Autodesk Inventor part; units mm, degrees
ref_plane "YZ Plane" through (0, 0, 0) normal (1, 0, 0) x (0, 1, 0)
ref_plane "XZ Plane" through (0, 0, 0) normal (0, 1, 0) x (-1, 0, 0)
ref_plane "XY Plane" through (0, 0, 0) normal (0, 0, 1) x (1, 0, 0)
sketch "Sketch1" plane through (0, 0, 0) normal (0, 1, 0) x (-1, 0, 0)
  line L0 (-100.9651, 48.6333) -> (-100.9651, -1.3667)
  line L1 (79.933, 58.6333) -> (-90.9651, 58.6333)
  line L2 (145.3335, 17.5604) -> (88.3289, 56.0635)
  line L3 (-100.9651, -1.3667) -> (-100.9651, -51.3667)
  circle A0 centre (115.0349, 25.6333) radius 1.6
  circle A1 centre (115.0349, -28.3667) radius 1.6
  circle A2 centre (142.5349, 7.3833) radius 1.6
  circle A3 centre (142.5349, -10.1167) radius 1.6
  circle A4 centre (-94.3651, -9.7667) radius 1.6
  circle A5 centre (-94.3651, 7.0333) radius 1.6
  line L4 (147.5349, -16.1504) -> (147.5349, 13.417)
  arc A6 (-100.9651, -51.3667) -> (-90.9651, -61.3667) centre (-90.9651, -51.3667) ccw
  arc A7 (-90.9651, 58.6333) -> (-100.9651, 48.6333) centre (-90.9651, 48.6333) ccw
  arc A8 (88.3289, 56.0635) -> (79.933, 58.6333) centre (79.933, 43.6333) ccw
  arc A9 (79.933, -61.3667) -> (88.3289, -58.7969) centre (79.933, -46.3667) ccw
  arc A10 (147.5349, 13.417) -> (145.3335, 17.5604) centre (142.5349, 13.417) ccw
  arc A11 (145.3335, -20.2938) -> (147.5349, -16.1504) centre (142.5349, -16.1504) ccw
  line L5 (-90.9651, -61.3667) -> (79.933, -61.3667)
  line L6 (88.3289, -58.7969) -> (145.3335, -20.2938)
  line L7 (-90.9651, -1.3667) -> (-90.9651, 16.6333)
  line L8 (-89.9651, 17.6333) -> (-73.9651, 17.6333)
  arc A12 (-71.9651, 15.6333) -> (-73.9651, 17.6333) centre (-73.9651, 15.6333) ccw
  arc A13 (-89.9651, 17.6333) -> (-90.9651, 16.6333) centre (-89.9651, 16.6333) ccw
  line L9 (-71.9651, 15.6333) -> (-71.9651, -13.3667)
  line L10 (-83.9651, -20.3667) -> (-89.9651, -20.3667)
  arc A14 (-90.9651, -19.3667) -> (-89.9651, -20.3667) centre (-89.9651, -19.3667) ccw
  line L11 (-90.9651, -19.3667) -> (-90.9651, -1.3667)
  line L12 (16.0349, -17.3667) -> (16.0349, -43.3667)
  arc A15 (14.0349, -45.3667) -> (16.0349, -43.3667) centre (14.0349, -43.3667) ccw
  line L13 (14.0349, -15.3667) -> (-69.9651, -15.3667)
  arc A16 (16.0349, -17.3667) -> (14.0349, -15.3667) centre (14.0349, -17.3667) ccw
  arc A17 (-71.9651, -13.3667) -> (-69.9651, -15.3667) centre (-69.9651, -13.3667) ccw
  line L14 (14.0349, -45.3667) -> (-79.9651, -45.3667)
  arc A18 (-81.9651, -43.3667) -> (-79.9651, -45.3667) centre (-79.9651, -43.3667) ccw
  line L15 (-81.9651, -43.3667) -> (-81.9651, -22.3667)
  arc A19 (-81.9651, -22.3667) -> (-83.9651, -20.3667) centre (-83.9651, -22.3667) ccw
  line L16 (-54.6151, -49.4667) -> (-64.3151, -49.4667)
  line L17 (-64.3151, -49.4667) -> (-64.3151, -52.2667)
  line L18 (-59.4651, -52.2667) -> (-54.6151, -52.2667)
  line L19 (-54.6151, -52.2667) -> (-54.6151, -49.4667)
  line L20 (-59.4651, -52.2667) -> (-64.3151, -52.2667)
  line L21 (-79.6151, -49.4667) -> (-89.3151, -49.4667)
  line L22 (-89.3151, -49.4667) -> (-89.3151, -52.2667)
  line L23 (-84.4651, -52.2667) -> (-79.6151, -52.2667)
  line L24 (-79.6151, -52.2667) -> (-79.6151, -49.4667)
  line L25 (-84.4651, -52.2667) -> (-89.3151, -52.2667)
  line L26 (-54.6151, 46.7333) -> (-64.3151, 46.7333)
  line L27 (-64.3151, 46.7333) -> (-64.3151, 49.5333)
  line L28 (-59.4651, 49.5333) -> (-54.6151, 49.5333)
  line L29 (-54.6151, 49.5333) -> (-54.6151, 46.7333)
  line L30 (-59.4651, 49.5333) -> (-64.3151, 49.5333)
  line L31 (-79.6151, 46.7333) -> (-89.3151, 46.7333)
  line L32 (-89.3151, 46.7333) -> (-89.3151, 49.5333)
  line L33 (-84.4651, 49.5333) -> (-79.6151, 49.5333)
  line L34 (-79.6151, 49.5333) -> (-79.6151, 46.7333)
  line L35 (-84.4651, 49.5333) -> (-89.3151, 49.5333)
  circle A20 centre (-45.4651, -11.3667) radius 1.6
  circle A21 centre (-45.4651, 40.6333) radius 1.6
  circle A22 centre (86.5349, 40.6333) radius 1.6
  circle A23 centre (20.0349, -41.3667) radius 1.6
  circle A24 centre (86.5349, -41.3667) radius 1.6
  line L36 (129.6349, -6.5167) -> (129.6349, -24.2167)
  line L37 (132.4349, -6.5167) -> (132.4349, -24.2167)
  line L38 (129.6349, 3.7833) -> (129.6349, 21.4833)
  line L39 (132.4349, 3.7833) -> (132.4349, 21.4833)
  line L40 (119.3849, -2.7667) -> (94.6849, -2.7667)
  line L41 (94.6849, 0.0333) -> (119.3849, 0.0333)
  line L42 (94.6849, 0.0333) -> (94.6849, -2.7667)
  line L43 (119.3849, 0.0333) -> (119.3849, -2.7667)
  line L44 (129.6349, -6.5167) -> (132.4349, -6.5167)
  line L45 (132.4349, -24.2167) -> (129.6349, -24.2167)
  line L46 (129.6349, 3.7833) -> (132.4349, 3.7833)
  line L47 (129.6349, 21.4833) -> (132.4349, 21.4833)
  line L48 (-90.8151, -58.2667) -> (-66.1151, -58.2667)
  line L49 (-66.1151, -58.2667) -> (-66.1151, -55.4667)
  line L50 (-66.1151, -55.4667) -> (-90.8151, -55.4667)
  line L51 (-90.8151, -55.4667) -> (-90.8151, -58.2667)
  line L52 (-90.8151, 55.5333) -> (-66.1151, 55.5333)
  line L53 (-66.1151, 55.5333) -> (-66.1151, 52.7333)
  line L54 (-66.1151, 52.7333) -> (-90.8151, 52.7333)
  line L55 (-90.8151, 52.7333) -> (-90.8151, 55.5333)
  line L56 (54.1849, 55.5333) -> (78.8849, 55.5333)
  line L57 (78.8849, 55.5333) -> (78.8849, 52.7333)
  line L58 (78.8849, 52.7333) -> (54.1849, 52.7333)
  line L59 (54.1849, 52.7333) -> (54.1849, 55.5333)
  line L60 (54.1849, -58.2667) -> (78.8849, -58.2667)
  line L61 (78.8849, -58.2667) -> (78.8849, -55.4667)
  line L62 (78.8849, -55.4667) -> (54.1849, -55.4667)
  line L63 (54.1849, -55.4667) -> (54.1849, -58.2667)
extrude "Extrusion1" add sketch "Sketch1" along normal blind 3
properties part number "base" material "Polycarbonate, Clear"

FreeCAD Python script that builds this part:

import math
import FreeCAD as App
import Part
import Sketcher

V = App.Vector
Q = App.Units.Quantity

doc = App.newDocument("Part")
params = doc.addObject("Spreadsheet::Sheet", "Params")
for row, (alias, value) in enumerate([
    ("sketch1_radius", "10 mm"),
    ("sketch1_radius2", "15 mm"),
    ("sketch1_radius3", "5 mm"),
    ("sketch1_radius4", "1 mm"),
    ("sketch1_radius5", "2 mm"),
    ("pad1_length", "3 mm"),
], start=1):
    params.set(f"A{row}", alias)
    params.set(f"B{row}", "=" + value)
    params.setAlias(f"B{row}", alias)

body = doc.addObject("PartDesign::Body", "Body")

# Sketch on XZ plane
sketch1 = body.newObject("Sketcher::SketchObject", "Sketch")
sketch1.AttachmentSupport = (doc.getObject("XZ_Plane"), [""])
sketch1.MapMode = "FlatFace"
sketch1.addGeometry([
    Part.ArcOfCircle(Part.Circle(V(91, 48.6, 0), V(0, 0, 1), 10), math.radians(0), math.radians(90)),  # 0
    Part.LineSegment(V(101, 48.6, 0), V(101, -51.4, 0)),  # 1
    Part.ArcOfCircle(Part.Circle(V(91, -51.4, 0), V(0, 0, 1), 10), math.radians(-90), math.radians(0)),  # 2
    Part.LineSegment(V(91, -61.4, 0), V(-79.9, -61.4, 0)),  # 3
    Part.ArcOfCircle(Part.Circle(V(-79.9, -46.4, 0), V(0, 0, 1), 15), math.radians(-124), math.radians(-90)),  # 4
    Part.LineSegment(V(-88.3, -58.8, 0), V(-145.3, -20.3, 0)),  # 5
    Part.ArcOfCircle(Part.Circle(V(-142.5, -16.2, 0), V(0, 0, 1), 5), math.radians(180), math.radians(236)),  # 6
    Part.LineSegment(V(-147.5, -16.2, 0), V(-147.5, 13.4, 0)),  # 7
    Part.ArcOfCircle(Part.Circle(V(-142.5, 13.4, 0), V(0, 0, 1), 5), math.radians(124), math.radians(180)),  # 8
    Part.LineSegment(V(-145.3, 17.6, 0), V(-88.3, 56.1, 0)),  # 9
    Part.ArcOfCircle(Part.Circle(V(-79.9, 43.6, 0), V(0, 0, 1), 15), math.radians(90), math.radians(124)),  # 10
    Part.LineSegment(V(-79.9, 58.6, 0), V(91, 58.6, 0)),  # 11
    Part.LineSegment(V(66.1, -58.3, 0), V(90.8, -58.3, 0)),  # 12
    Part.LineSegment(V(90.8, -58.3, 0), V(90.8, -55.5, 0)),  # 13
    Part.LineSegment(V(90.8, -55.5, 0), V(66.1, -55.5, 0)),  # 14
    Part.LineSegment(V(66.1, -55.5, 0), V(66.1, -58.3, 0)),  # 15
    Part.LineSegment(V(89.3, -49.5, 0), V(79.6, -49.5, 0)),  # 16
    Part.LineSegment(V(79.6, -49.5, 0), V(79.6, -52.3, 0)),  # 17
    Part.LineSegment(V(79.6, -52.3, 0), V(89.3, -52.3, 0)),  # 18
    Part.LineSegment(V(89.3, -52.3, 0), V(89.3, -49.5, 0)),  # 19
    Part.LineSegment(V(64.3, -49.5, 0), V(54.6, -49.5, 0)),  # 20
    Part.LineSegment(V(54.6, -49.5, 0), V(54.6, -52.3, 0)),  # 21
    Part.LineSegment(V(54.6, -52.3, 0), V(64.3, -52.3, 0)),  # 22
    Part.LineSegment(V(64.3, -52.3, 0), V(64.3, -49.5, 0)),  # 23
    Part.Circle(V(-20, -41.4, 0), V(0, 0, 1), 1.6),  # 24
    Part.Circle(V(94.4, -9.8, 0), V(0, 0, 1), 1.6),  # 25
    Part.Circle(V(45.5, -11.4, 0), V(0, 0, 1), 1.6),  # 26
    Part.LineSegment(V(91, -19.4, 0), V(91, 16.6, 0)),  # 27
    Part.ArcOfCircle(Part.Circle(V(90, 16.6, 0), V(0, 0, 1), 1), math.radians(0), math.radians(90)),  # 28
    Part.LineSegment(V(90, 17.6, 0), V(74, 17.6, 0)),  # 29
    Part.ArcOfCircle(Part.Circle(V(74, 15.6, 0), V(0, 0, 1), 2), math.radians(90), math.radians(180)),  # 30
    Part.LineSegment(V(72, 15.6, 0), V(72, -13.4, 0)),  # 31
    Part.ArcOfCircle(Part.Circle(V(70, -13.4, 0), V(0, 0, 1), 2), math.radians(-90), math.radians(0)),  # 32
    Part.LineSegment(V(70, -15.4, 0), V(-14, -15.4, 0)),  # 33
    Part.ArcOfCircle(Part.Circle(V(-14, -17.4, 0), V(0, 0, 1), 2), math.radians(90), math.radians(180)),  # 34
    Part.LineSegment(V(-16, -17.4, 0), V(-16, -43.4, 0)),  # 35
    Part.ArcOfCircle(Part.Circle(V(-14, -43.4, 0), V(0, 0, 1), 2), math.radians(180), math.radians(270)),  # 36
    Part.LineSegment(V(-14, -45.4, 0), V(80, -45.4, 0)),  # 37
    Part.ArcOfCircle(Part.Circle(V(80, -43.4, 0), V(0, 0, 1), 2), math.radians(-90), math.radians(0)),  # 38
    Part.LineSegment(V(82, -43.4, 0), V(82, -22.4, 0)),  # 39
    Part.ArcOfCircle(Part.Circle(V(84, -22.4, 0), V(0, 0, 1), 2), math.radians(90), math.radians(180)),  # 40
    Part.LineSegment(V(84, -20.4, 0), V(90, -20.4, 0)),  # 41
    Part.ArcOfCircle(Part.Circle(V(90, -19.4, 0), V(0, 0, 1), 1), math.radians(-90), math.radians(0)),  # 42
    Part.LineSegment(V(-78.9, -58.3, 0), V(-54.2, -58.3, 0)),  # 43
    Part.LineSegment(V(-54.2, -58.3, 0), V(-54.2, -55.5, 0)),  # 44
    Part.LineSegment(V(-54.2, -55.5, 0), V(-78.9, -55.5, 0)),  # 45
    Part.LineSegment(V(-78.9, -55.5, 0), V(-78.9, -58.3, 0)),  # 46
    Part.Circle(V(-86.5, -41.4, 0), V(0, 0, 1), 1.6),  # 47
    Part.Circle(V(-115, -28.4, 0), V(0, 0, 1), 1.6),  # 48
    Part.LineSegment(V(-119.4, 0, 0), V(-119.4, -2.8, 0)),  # 49
    Part.LineSegment(V(-119.4, -2.8, 0), V(-94.7, -2.8, 0)),  # 50
    Part.LineSegment(V(-94.7, -2.8, 0), V(-94.7, 0, 0)),  # 51
    Part.LineSegment(V(-94.7, 0, 0), V(-119.4, 0, 0)),  # 52
    Part.LineSegment(V(-129.6, -24.2, 0), V(-129.6, -6.5, 0)),  # 53
    Part.LineSegment(V(-129.6, -6.5, 0), V(-132.4, -6.5, 0)),  # 54
    Part.LineSegment(V(-132.4, -6.5, 0), V(-132.4, -24.2, 0)),  # 55
    Part.LineSegment(V(-132.4, -24.2, 0), V(-129.6, -24.2, 0)),  # 56
    Part.Circle(V(-142.5, -10.1, 0), V(0, 0, 1), 1.6),  # 57
    Part.Circle(V(94.4, 7, 0), V(0, 0, 1), 1.6),  # 58
    Part.Circle(V(45.5, 40.6, 0), V(0, 0, 1), 1.6),  # 59
    Part.LineSegment(V(79.6, 49.5, 0), V(79.6, 46.7, 0)),  # 60
    Part.LineSegment(V(79.6, 46.7, 0), V(89.3, 46.7, 0)),  # 61
    Part.LineSegment(V(89.3, 46.7, 0), V(89.3, 49.5, 0)),  # 62
    Part.LineSegment(V(89.3, 49.5, 0), V(79.6, 49.5, 0)),  # 63
    Part.LineSegment(V(90.8, 52.7, 0), V(90.8, 55.5, 0)),  # 64
    Part.LineSegment(V(90.8, 55.5, 0), V(66.1, 55.5, 0)),  # 65
    Part.LineSegment(V(66.1, 55.5, 0), V(66.1, 52.7, 0)),  # 66
    Part.LineSegment(V(66.1, 52.7, 0), V(90.8, 52.7, 0)),  # 67
    Part.LineSegment(V(54.6, 49.5, 0), V(54.6, 46.7, 0)),  # 68
    Part.LineSegment(V(54.6, 46.7, 0), V(64.3, 46.7, 0)),  # 69
    Part.LineSegment(V(64.3, 46.7, 0), V(64.3, 49.5, 0)),  # 70
    Part.LineSegment(V(64.3, 49.5, 0), V(54.6, 49.5, 0)),  # 71
    Part.LineSegment(V(-132.4, 3.8, 0), V(-129.6, 3.8, 0)),  # 72
    Part.LineSegment(V(-129.6, 3.8, 0), V(-129.6, 21.5, 0)),  # 73
    Part.LineSegment(V(-129.6, 21.5, 0), V(-132.4, 21.5, 0)),  # 74
    Part.LineSegment(V(-132.4, 21.5, 0), V(-132.4, 3.8, 0)),  # 75
    Part.Circle(V(-142.5, 7.4, 0), V(0, 0, 1), 1.6),  # 76
    Part.Circle(V(-115, 25.6, 0), V(0, 0, 1), 1.6),  # 77
    Part.LineSegment(V(-54.2, 52.7, 0), V(-54.2, 55.5, 0)),  # 78
    Part.LineSegment(V(-54.2, 55.5, 0), V(-78.9, 55.5, 0)),  # 79
    Part.LineSegment(V(-78.9, 55.5, 0), V(-78.9, 52.7, 0)),  # 80
    Part.LineSegment(V(-78.9, 52.7, 0), V(-54.2, 52.7, 0)),  # 81
    Part.Circle(V(-86.5, 40.6, 0), V(0, 0, 1), 1.6),  # 82
], False)
sketch1.addConstraint([
    Sketcher.Constraint("Tangent", 0, 1, 1, 1),
    Sketcher.Constraint("Tangent", 1, 2, 2, 2),
    Sketcher.Constraint("Tangent", 2, 1, 3, 1),
    Sketcher.Constraint("Tangent", 3, 2, 4, 2),
    Sketcher.Constraint("Tangent", 4, 1, 5, 1),
    Sketcher.Constraint("Tangent", 5, 2, 6, 2),
    Sketcher.Constraint("Tangent", 6, 1, 7, 1),
    Sketcher.Constraint("Tangent", 7, 2, 8, 2),
    Sketcher.Constraint("Tangent", 8, 1, 9, 1),
    Sketcher.Constraint("Tangent", 9, 2, 10, 2),
    Sketcher.Constraint("Tangent", 10, 1, 11, 1),
    Sketcher.Constraint("Tangent", 11, 2, 0, 2),
    Sketcher.Constraint("Coincident", 12, 2, 13, 1),
    Sketcher.Constraint("Coincident", 13, 2, 14, 1),
    Sketcher.Constraint("Coincident", 14, 2, 15, 1),
    Sketcher.Constraint("Coincident", 15, 2, 12, 1),
    Sketcher.Constraint("Coincident", 16, 2, 17, 1),
    Sketcher.Constraint("Coincident", 17, 2, 18, 1),
    Sketcher.Constraint("Coincident", 18, 2, 19, 1),
    Sketcher.Constraint("Coincident", 19, 2, 16, 1),
    Sketcher.Constraint("Coincident", 20, 2, 21, 1),
    Sketcher.Constraint("Coincident", 21, 2, 22, 1),
    Sketcher.Constraint("Coincident", 22, 2, 23, 1),
    Sketcher.Constraint("Coincident", 23, 2, 20, 1),
    Sketcher.Constraint("Tangent", 27, 2, 28, 1),
    Sketcher.Constraint("Tangent", 28, 2, 29, 1),
    Sketcher.Constraint("Tangent", 29, 2, 30, 1),
    Sketcher.Constraint("Tangent", 30, 2, 31, 1),
    Sketcher.Constraint("Tangent", 31, 2, 32, 2),
    Sketcher.Constraint("Tangent", 32, 1, 33, 1),
    Sketcher.Constraint("Tangent", 33, 2, 34, 1),
    Sketcher.Constraint("Tangent", 34, 2, 35, 1),
    Sketcher.Constraint("Tangent", 35, 2, 36, 1),
    Sketcher.Constraint("Tangent", 36, 2, 37, 1),
    Sketcher.Constraint("Tangent", 37, 2, 38, 1),
    Sketcher.Constraint("Tangent", 38, 2, 39, 1),
    Sketcher.Constraint("Tangent", 39, 2, 40, 2),
    Sketcher.Constraint("Tangent", 40, 1, 41, 1),
    Sketcher.Constraint("Tangent", 41, 2, 42, 1),
    Sketcher.Constraint("Tangent", 42, 2, 27, 1),
    Sketcher.Constraint("Coincident", 43, 2, 44, 1),
    Sketcher.Constraint("Coincident", 44, 2, 45, 1),
    Sketcher.Constraint("Coincident", 45, 2, 46, 1),
    Sketcher.Constraint("Coincident", 46, 2, 43, 1),
    Sketcher.Constraint("Coincident", 49, 2, 50, 1),
    Sketcher.Constraint("Coincident", 50, 2, 51, 1),
    Sketcher.Constraint("Coincident", 51, 2, 52, 1),
    Sketcher.Constraint("Coincident", 52, 2, 49, 1),
    Sketcher.Constraint("Coincident", 53, 2, 54, 1),
    Sketcher.Constraint("Coincident", 54, 2, 55, 1),
    Sketcher.Constraint("Coincident", 55, 2, 56, 1),
    Sketcher.Constraint("Coincident", 56, 2, 53, 1),
    Sketcher.Constraint("Coincident", 60, 2, 61, 1),
    Sketcher.Constraint("Coincident", 61, 2, 62, 1),
    Sketcher.Constraint("Coincident", 62, 2, 63, 1),
    Sketcher.Constraint("Coincident", 63, 2, 60, 1),
    Sketcher.Constraint("Coincident", 64, 2, 65, 1),
    Sketcher.Constraint("Coincident", 65, 2, 66, 1),
    Sketcher.Constraint("Coincident", 66, 2, 67, 1),
    Sketcher.Constraint("Coincident", 67, 2, 64, 1),
    Sketcher.Constraint("Coincident", 68, 2, 69, 1),
    Sketcher.Constraint("Coincident", 69, 2, 70, 1),
    Sketcher.Constraint("Coincident", 70, 2, 71, 1),
    Sketcher.Constraint("Coincident", 71, 2, 68, 1),
    Sketcher.Constraint("Coincident", 72, 2, 73, 1),
    Sketcher.Constraint("Coincident", 73, 2, 74, 1),
    Sketcher.Constraint("Coincident", 74, 2, 75, 1),
    Sketcher.Constraint("Coincident", 75, 2, 72, 1),
    Sketcher.Constraint("Coincident", 78, 2, 79, 1),
    Sketcher.Constraint("Coincident", 79, 2, 80, 1),
    Sketcher.Constraint("Coincident", 80, 2, 81, 1),
    Sketcher.Constraint("Coincident", 81, 2, 78, 1),
    Sketcher.Constraint("Vertical", 1),
    Sketcher.Constraint("Horizontal", 3),
    Sketcher.Constraint("Vertical", 7),
    Sketcher.Constraint("Horizontal", 11),
    Sketcher.Constraint("Horizontal", 12),
    Sketcher.Constraint("Vertical", 13),
    Sketcher.Constraint("Horizontal", 14),
    Sketcher.Constraint("Vertical", 15),
    Sketcher.Constraint("Horizontal", 16),
    Sketcher.Constraint("Vertical", 17),
    Sketcher.Constraint("Horizontal", 18),
    Sketcher.Constraint("Vertical", 19),
    Sketcher.Constraint("Horizontal", 20),
    Sketcher.Constraint("Vertical", 21),
    Sketcher.Constraint("Horizontal", 22),
    Sketcher.Constraint("Vertical", 23),
    Sketcher.Constraint("Vertical", 27),
    Sketcher.Constraint("Horizontal", 29),
    Sketcher.Constraint("Vertical", 31),
    Sketcher.Constraint("Horizontal", 33),
    Sketcher.Constraint("Vertical", 35),
    Sketcher.Constraint("Horizontal", 37),
    Sketcher.Constraint("Vertical", 39),
    Sketcher.Constraint("Horizontal", 41),
    Sketcher.Constraint("Horizontal", 43),
    Sketcher.Constraint("Vertical", 44),
    Sketcher.Constraint("Horizontal", 45),
    Sketcher.Constraint("Vertical", 46),
    Sketcher.Constraint("Vertical", 49),
    Sketcher.Constraint("Horizontal", 50),
    Sketcher.Constraint("Vertical", 51),
    Sketcher.Constraint("Horizontal", 52),
    Sketcher.Constraint("Vertical", 53),
    Sketcher.Constraint("Horizontal", 54),
    Sketcher.Constraint("Vertical", 55),
    Sketcher.Constraint("Horizontal", 56),
    Sketcher.Constraint("Vertical", 60),
    Sketcher.Constraint("Horizontal", 61),
    Sketcher.Constraint("Vertical", 62),
    Sketcher.Constraint("Horizontal", 63),
    Sketcher.Constraint("Vertical", 64),
    Sketcher.Constraint("Horizontal", 65),
    Sketcher.Constraint("Vertical", 66),
    Sketcher.Constraint("Horizontal", 67),
    Sketcher.Constraint("Vertical", 68),
    Sketcher.Constraint("Horizontal", 69),
    Sketcher.Constraint("Vertical", 70),
    Sketcher.Constraint("Horizontal", 71),
    Sketcher.Constraint("Horizontal", 72),
    Sketcher.Constraint("Vertical", 73),
    Sketcher.Constraint("Horizontal", 74),
    Sketcher.Constraint("Vertical", 75),
    Sketcher.Constraint("Vertical", 78),
    Sketcher.Constraint("Horizontal", 79),
    Sketcher.Constraint("Vertical", 80),
    Sketcher.Constraint("Horizontal", 81),
    Sketcher.Constraint("Equal", 0, 2),
    Sketcher.Constraint("Equal", 6, 8),
    Sketcher.Constraint("Equal", 4, 10),
    Sketcher.Constraint("Equal", 24, 25),
    Sketcher.Constraint("Equal", 25, 26),
    Sketcher.Constraint("Equal", 30, 32),
    Sketcher.Constraint("Equal", 32, 34),
    Sketcher.Constraint("Equal", 34, 36),
    Sketcher.Constraint("Equal", 36, 38),
    Sketcher.Constraint("Equal", 38, 40),
    Sketcher.Constraint("Equal", 28, 42),
    Sketcher.Constraint("Equal", 26, 47),
    Sketcher.Constraint("Equal", 47, 48),
    Sketcher.Constraint("Equal", 48, 57),
    Sketcher.Constraint("Equal", 57, 58),
    Sketcher.Constraint("Equal", 58, 59),
    Sketcher.Constraint("Equal", 59, 76),
    Sketcher.Constraint("Equal", 76, 77),
    Sketcher.Constraint("Equal", 77, 82),
    Sketcher.Constraint("Horizontal", 24, 3, 47, 3),
    Sketcher.Constraint("Horizontal", 59, 3, 82, 3),
    Sketcher.Constraint("Horizontal", 19, 2, 20, 2),
    Sketcher.Constraint("Horizontal", 18, 2, 21, 2),
    Sketcher.Constraint("Horizontal", 15, 2, 43, 2),
    Sketcher.Constraint("Horizontal", 14, 2, 44, 2),
    Sketcher.Constraint("Horizontal", 61, 2, 68, 2),
    Sketcher.Constraint("Horizontal", 63, 2, 70, 2),
    Sketcher.Constraint("Horizontal", 65, 2, 78, 2),
    Sketcher.Constraint("Horizontal", 67, 2, 80, 2),
    Sketcher.Constraint("Vertical", 4, 3, 10, 3),
    Sketcher.Constraint("Vertical", 8, 3, 57, 3),
    Sketcher.Constraint("Vertical", 25, 3, 58, 3),
    Sketcher.Constraint("Vertical", 26, 3, 59, 3),
    Sketcher.Constraint("Vertical", 57, 3, 76, 3),
    Sketcher.Constraint("Vertical", 48, 3, 77, 3),
    Sketcher.Constraint("Vertical", 47, 3, 82, 3),
    Sketcher.Constraint("Vertical", 5, 2, 8, 1),
    Sketcher.Constraint("Vertical", 11, 2, 27, 2),
    Sketcher.Constraint("Vertical", 17, 2, 60, 2),
    Sketcher.Constraint("Vertical", 19, 2, 61, 2),
    Sketcher.Constraint("Vertical", 13, 2, 64, 2),
    Sketcher.Constraint("Vertical", 15, 2, 65, 2),
    Sketcher.Constraint("Vertical", 21, 2, 68, 2),
    Sketcher.Constraint("Vertical", 23, 2, 69, 2),
    Sketcher.Constraint("Vertical", 56, 2, 72, 2),
    Sketcher.Constraint("Vertical", 55, 2, 74, 2),
    Sketcher.Constraint("Vertical", 44, 2, 78, 2),
    Sketcher.Constraint("Vertical", 46, 2, 79, 2),
    Sketcher.Constraint("Equal", 18, 20),
    Sketcher.Constraint("Equal", 14, 43),
    Sketcher.Constraint("Equal", 45, 50),
    Sketcher.Constraint("Equal", 74, 13),
    Sketcher.Constraint("Equal", 15, 17),
    Sketcher.Constraint("Equal", 46, 49),
    Sketcher.Constraint("Equal", 51, 60),
    Sketcher.Constraint("Equal", 62, 64),
    Sketcher.Constraint("Equal", 55, 73),
    Sketcher.Constraint("Radius", 0, Q("10 mm")),
    Sketcher.Constraint("Radius", 4, Q("15 mm")),
    Sketcher.Constraint("Radius", 6, Q("5 mm")),
    Sketcher.Constraint("Radius", 28, Q("1 mm")),
    Sketcher.Constraint("Radius", 30, Q("2 mm")),
    Sketcher.Constraint("Diameter", 24, Q("3.2 mm")),
    Sketcher.Constraint("DistanceX", 29, 2, 29, 1, Q("16 mm")),
    Sketcher.Constraint("DistanceX", 33, 2, 33, 1, Q("84 mm")),
    Sketcher.Constraint("DistanceX", 37, 1, 37, 2, Q("94 mm")),
    Sketcher.Constraint("DistanceY", 1, 2, 1, 1, Q("100 mm")),
    Sketcher.Constraint("DistanceY", 27, 1, 27, 2, Q("36 mm")),
    Sketcher.Constraint("DistanceY", 31, 2, 31, 1, Q("29 mm")),
    Sketcher.Constraint("DistanceY", 35, 2, 35, 1, Q("26 mm")),
    Sketcher.Constraint("DistanceX", 12, 1, 12, 2, Q("24.7 mm")),
    Sketcher.Constraint("DistanceX", 16, 2, 16, 1, Q("9.7 mm")),
    Sketcher.Constraint("DistanceX", 54, 2, 54, 1, Q("2.8 mm")),
    Sketcher.Constraint("DistanceY", 53, 1, 53, 2, Q("17.7 mm")),
    Sketcher.Constraint("DistanceX", 3, 2, 3, 1, Q("170.898 mm")),
    Sketcher.Constraint("DistanceY", 7, 1, 7, 2, Q("29.5674 mm")),
    Sketcher.Constraint("DistanceX", -1, 1, 0, 3, Q("90.965 mm")),
    Sketcher.Constraint("DistanceX", 6, 3, -1, 1, Q("142.535 mm")),
    Sketcher.Constraint("DistanceY", -1, 1, 8, 3, Q("13.417 mm")),
    Sketcher.Constraint("DistanceX", 24, 3, -1, 1, Q("20.035 mm")),
    Sketcher.Constraint("DistanceX", -1, 1, 25, 3, Q("94.365 mm")),
    Sketcher.Constraint("DistanceX", -1, 1, 26, 3, Q("45.465 mm")),
    Sketcher.Constraint("DistanceX", 47, 3, -1, 1, Q("86.535 mm")),
    Sketcher.Constraint("DistanceX", 48, 3, -1, 1, Q("115.035 mm")),
    Sketcher.Constraint("DistanceX", -1, 1, 12, 2, Q("90.815 mm")),
    Sketcher.Constraint("DistanceX", -1, 1, 16, 2, Q("79.615 mm")),
    Sketcher.Constraint("DistanceX", -1, 1, 20, 2, Q("54.615 mm")),
    Sketcher.Constraint("DistanceX", 43, 2, -1, 1, Q("54.185 mm")),
    Sketcher.Constraint("DistanceX", 49, 2, -1, 1, Q("119.385 mm")),
    Sketcher.Constraint("DistanceX", 53, 2, -1, 1, Q("129.635 mm")),
    Sketcher.Constraint("DistanceY", 24, 3, -1, 1, Q("41.3667 mm")),
    Sketcher.Constraint("DistanceY", 25, 3, -1, 1, Q("9.7667 mm")),
    Sketcher.Constraint("DistanceY", 26, 3, -1, 1, Q("11.3667 mm")),
    Sketcher.Constraint("DistanceY", -1, 1, 28, 3, Q("16.6333 mm")),
    Sketcher.Constraint("DistanceY", 48, 3, -1, 1, Q("28.3667 mm")),
    Sketcher.Constraint("DistanceY", 57, 3, -1, 1, Q("10.1167 mm")),
    Sketcher.Constraint("DistanceY", -1, 1, 58, 3, Q("7.0333 mm")),
    Sketcher.Constraint("DistanceY", -1, 1, 59, 3, Q("40.6333 mm")),
    Sketcher.Constraint("DistanceY", -1, 1, 76, 3, Q("7.3833 mm")),
    Sketcher.Constraint("DistanceY", -1, 1, 77, 3, Q("25.6333 mm")),
    Sketcher.Constraint("DistanceY", 12, 2, -1, 1, Q("58.2667 mm")),
    Sketcher.Constraint("DistanceY", 16, 2, -1, 1, Q("49.4667 mm")),
    Sketcher.Constraint("DistanceY", 49, 2, -1, 1, Q("2.7667 mm")),
    Sketcher.Constraint("DistanceY", 53, 2, -1, 1, Q("6.5167 mm")),
    Sketcher.Constraint("DistanceY", -1, 1, 60, 2, Q("46.7333 mm")),
    Sketcher.Constraint("DistanceY", -1, 1, 64, 2, Q("55.5333 mm")),
    Sketcher.Constraint("DistanceY", -1, 1, 72, 2, Q("3.7833 mm")),
])
sketch1.setExpression("Constraints[185]", "Params.sketch1_radius")
sketch1.setExpression("Constraints[186]", "Params.sketch1_radius2")
sketch1.setExpression("Constraints[187]", "Params.sketch1_radius3")
sketch1.setExpression("Constraints[188]", "Params.sketch1_radius4")
sketch1.setExpression("Constraints[189]", "Params.sketch1_radius5")
pad1 = body.newObject("PartDesign::Pad", "Pad")
pad1.Profile = sketch1
pad1.setExpression("Length", "Params.pad1_length")
pad1.Reversed = True

doc.recompute()
